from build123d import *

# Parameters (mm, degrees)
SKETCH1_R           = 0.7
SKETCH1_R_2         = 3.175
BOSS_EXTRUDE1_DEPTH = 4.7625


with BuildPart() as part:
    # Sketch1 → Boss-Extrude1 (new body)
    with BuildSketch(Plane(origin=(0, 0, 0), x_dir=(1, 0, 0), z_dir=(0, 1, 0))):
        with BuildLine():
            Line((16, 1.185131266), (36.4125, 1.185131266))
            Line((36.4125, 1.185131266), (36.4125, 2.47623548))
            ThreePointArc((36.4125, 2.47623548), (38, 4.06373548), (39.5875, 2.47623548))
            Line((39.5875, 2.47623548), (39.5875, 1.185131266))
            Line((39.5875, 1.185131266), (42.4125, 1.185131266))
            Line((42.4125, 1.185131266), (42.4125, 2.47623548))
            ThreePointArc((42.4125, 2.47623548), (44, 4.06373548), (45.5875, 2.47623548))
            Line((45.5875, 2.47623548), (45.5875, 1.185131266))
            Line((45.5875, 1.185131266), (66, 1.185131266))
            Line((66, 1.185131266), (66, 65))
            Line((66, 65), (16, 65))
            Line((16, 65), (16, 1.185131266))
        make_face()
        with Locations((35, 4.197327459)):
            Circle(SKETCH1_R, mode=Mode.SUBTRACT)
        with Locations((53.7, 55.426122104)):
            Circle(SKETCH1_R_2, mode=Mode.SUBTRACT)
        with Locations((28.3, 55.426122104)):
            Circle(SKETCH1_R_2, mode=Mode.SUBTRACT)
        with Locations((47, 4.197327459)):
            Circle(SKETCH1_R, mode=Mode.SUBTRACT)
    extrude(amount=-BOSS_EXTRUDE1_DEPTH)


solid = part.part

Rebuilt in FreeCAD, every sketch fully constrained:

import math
import FreeCAD as App
import Part
import Sketcher

V = App.Vector
Q = App.Units.Quantity

doc = App.newDocument("Part")
params = doc.addObject("Spreadsheet::Sheet", "Params")
for row, (alias, value) in enumerate([
    ("sketch1_diameter", "0.25 in"),
    ("sketch1_radius", "0.0625 in"),
    ("pad1_length", "0.1875 in"),
], start=1):
    params.set(f"A{row}", alias)
    params.set(f"B{row}", "=" + value)
    params.setAlias(f"B{row}", alias)

body = doc.addObject("PartDesign::Body", "Body")

# Sketch on XZ plane
sketch1 = body.newObject("Sketcher::SketchObject", "Sketch")
sketch1.AttachmentSupport = (doc.getObject("XZ_Plane"), [""])
sketch1.MapMode = "FlatFace"
sketch1.addGeometry([
    Part.LineSegment(V(16, -1.185131, 0), V(36.4125, -1.185131, 0)),  # 0
    Part.LineSegment(V(36.4125, -1.185131, 0), V(36.4125, -2.476235, 0)),  # 1
    Part.ArcOfCircle(Part.Circle(V(38, -2.476235, 0), V(0, 0, 1), 1.5875), math.radians(180), math.radians(360)),  # 2
    Part.LineSegment(V(39.5875, -2.476235, 0), V(39.5875, -1.185131, 0)),  # 3
    Part.LineSegment(V(39.5875, -1.185131, 0), V(42.4125, -1.185131, 0)),  # 4
    Part.LineSegment(V(42.4125, -1.185131, 0), V(42.4125, -2.476235, 0)),  # 5
    Part.ArcOfCircle(Part.Circle(V(44, -2.476235, 0), V(0, 0, 1), 1.5875), math.radians(180), math.radians(360)),  # 6
    Part.LineSegment(V(45.5875, -2.476235, 0), V(45.5875, -1.185131, 0)),  # 7
    Part.LineSegment(V(45.5875, -1.185131, 0), V(66, -1.185131, 0)),  # 8
    Part.LineSegment(V(66, -1.185131, 0), V(66, -65, 0)),  # 9
    Part.LineSegment(V(66, -65, 0), V(16, -65, 0)),  # 10
    Part.LineSegment(V(16, -65, 0), V(16, -1.185131, 0)),  # 11
    Part.Circle(V(35, -4.197327, 0), V(0, 0, 1), 0.7),  # 12
    Part.Circle(V(47, -4.197327, 0), V(0, 0, 1), 0.7),  # 13
    Part.Circle(V(28.3, -55.426122, 0), V(0, 0, 1), 3.175),  # 14
    Part.Circle(V(53.7, -55.426122, 0), V(0, 0, 1), 3.175),  # 15
], False)
sketch1.addConstraint([
    Sketcher.Constraint("Coincident", 0, 2, 1, 1),
    Sketcher.Constraint("Tangent", 1, 2, 2, 1),
    Sketcher.Constraint("Tangent", 2, 2, 3, 1),
    Sketcher.Constraint("Coincident", 3, 2, 4, 1),
    Sketcher.Constraint("Coincident", 4, 2, 5, 1),
    Sketcher.Constraint("Tangent", 5, 2, 6, 1),
    Sketcher.Constraint("Tangent", 6, 2, 7, 1),
    Sketcher.Constraint("Coincident", 7, 2, 8, 1),
    Sketcher.Constraint("Coincident", 8, 2, 9, 1),
    Sketcher.Constraint("Coincident", 9, 2, 10, 1),
    Sketcher.Constraint("Coincident", 10, 2, 11, 1),
    Sketcher.Constraint("Coincident", 11, 2, 0, 1),
    Sketcher.Constraint("Horizontal", 0),
    Sketcher.Constraint("Vertical", 1),
    Sketcher.Constraint("Vertical", 3),
    Sketcher.Constraint("Horizontal", 4),
    Sketcher.Constraint("Vertical", 5),
    Sketcher.Constraint("Vertical", 7),
    Sketcher.Constraint("Horizontal", 8),
    Sketcher.Constraint("Vertical", 9),
    Sketcher.Constraint("Horizontal", 10),
    Sketcher.Constraint("Vertical", 11),
    Sketcher.Constraint("Equal", 2, 6),
    Sketcher.Constraint("Equal", 12, 13),
    Sketcher.Constraint("Equal", 14, 15),
    Sketcher.Constraint("Horizontal", 2, 3, 6, 3),
    Sketcher.Constraint("Horizontal", 12, 3, 13, 3),
    Sketcher.Constraint("Horizontal", 14, 3, 15, 3),
    Sketcher.Constraint("Horizontal", 0, 2, 3, 2),
    Sketcher.Constraint("Horizontal", 4, 2, 7, 2),
    Sketcher.Constraint("Equal", 0, 8),
    Sketcher.Constraint("Diameter", 14, Q("0.25 in")),
    Sketcher.Constraint("Radius", 2, Q("0.0625 in")),
    Sketcher.Constraint("DistanceX", 14, 3, 15, 3, Q("1 in")),
    Sketcher.Constraint("Diameter", 12, Q("1.4 mm")),
    Sketcher.Constraint("DistanceX", 0, 1, 0, 2, Q("20.4125 mm")),
    Sketcher.Constraint("DistanceX", 4, 1, 4, 2, Q("2.825 mm")),
    Sketcher.Constraint("DistanceY", 9, 2, 9, 1, Q("63.814869 mm")),
    Sketcher.Constraint("DistanceX", -1, 1, 2, 3, Q("38 mm")),
    Sketcher.Constraint("DistanceX", -1, 1, 12, 3, Q("35 mm")),
    Sketcher.Constraint("DistanceX", -1, 1, 13, 3, Q("47 mm")),
    Sketcher.Constraint("DistanceX", -1, 1, 14, 3, Q("28.3 mm")),
    Sketcher.Constraint("DistanceY", 9, 2, -1, 1, Q("65 mm")),
    Sketcher.Constraint("DistanceY", 1, 2, 1, 1, Q("1.291104 mm")),
    Sketcher.Constraint("DistanceY", 12, 3, 2, 3, Q("1.721092 mm")),
    Sketcher.Constraint("DistanceY", 14, 3, 0, 2, Q("54.240991 mm")),
])
sketch1.setExpression("Constraints[31]", "Params.sketch1_diameter")
sketch1.setExpression("Constraints[32]", "Params.sketch1_radius")
pad1 = body.newObject("PartDesign::Pad", "Pad")
pad1.Profile = sketch1
pad1.setExpression("Length", "Params.pad1_length")

doc.recompute()
